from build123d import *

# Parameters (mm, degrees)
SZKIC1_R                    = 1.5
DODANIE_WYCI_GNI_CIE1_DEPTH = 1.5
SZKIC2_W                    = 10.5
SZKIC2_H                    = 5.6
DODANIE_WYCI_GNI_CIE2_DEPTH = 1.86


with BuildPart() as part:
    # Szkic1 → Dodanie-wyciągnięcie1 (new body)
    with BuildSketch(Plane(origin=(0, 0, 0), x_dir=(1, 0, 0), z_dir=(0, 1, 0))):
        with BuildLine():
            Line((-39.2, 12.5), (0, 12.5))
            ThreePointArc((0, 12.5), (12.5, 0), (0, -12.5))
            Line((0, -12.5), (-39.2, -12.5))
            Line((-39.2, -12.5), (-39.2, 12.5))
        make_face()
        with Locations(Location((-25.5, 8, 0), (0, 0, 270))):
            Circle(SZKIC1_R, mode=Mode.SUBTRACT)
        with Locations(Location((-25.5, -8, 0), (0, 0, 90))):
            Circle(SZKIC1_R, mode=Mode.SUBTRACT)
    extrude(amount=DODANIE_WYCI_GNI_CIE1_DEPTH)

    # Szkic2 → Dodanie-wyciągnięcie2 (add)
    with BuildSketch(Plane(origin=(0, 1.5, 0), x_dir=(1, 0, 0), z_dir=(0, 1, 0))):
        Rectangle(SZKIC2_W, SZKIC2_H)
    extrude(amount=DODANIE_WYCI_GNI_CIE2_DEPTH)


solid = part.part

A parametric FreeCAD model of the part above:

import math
import FreeCAD as App
import Part
import Sketcher

V = App.Vector
Q = App.Units.Quantity

doc = App.newDocument("Part")
body = doc.addObject("PartDesign::Body", "Body")

# Sketch on XZ plane
sketch1 = body.newObject("Sketcher::SketchObject", "Sketch")
sketch1.AttachmentSupport = (doc.getObject("XZ_Plane"), [""])
sketch1.MapMode = "FlatFace"
sketch1.addGeometry([
    Part.LineSegment(V(0, -12.5, 0), V(-39.2, -12.5, 0)),  # 0
    Part.LineSegment(V(-39.2, -12.5, 0), V(-39.2, 12.5, 0)),  # 1
    Part.LineSegment(V(-39.2, 12.5, 0), V(0, 12.5, 0)),  # 2
    Part.ArcOfCircle(Part.Circle(V(0, 0, 0), V(0, 0, 1), 12.5), math.radians(-90), math.radians(90)),  # 3
    Part.Circle(V(-25.5, 8, 0), V(0, 0, 1), 1.5),  # 4
    Part.Circle(V(-25.5, -8, 0), V(0, 0, 1), 1.5),  # 5
], False)
sketch1.addConstraint([
    Sketcher.Constraint("Coincident", 0, 2, 1, 1),
    Sketcher.Constraint("Coincident", 1, 2, 2, 1),
    Sketcher.Constraint("Tangent", 2, 2, 3, 2),
    Sketcher.Constraint("Tangent", 3, 1, 0, 1),
    Sketcher.Constraint("Horizontal", 0),
    Sketcher.Constraint("Vertical", 1),
    Sketcher.Constraint("Horizontal", 2),
    Sketcher.Constraint("Coincident", 3, 3, -1, 1),
    Sketcher.Constraint("Equal", 4, 5),
    Sketcher.Constraint("Symmetric", 4, 3, 5, 3, -1),
    Sketcher.Constraint("Diameter", 4, Q("3 mm")),
    Sketcher.Constraint("Radius", 3, Q("12.5 mm")),
    Sketcher.Constraint("DistanceX", 0, 2, 0, 1, Q("39.2 mm")),
    Sketcher.Constraint("DistanceY", -1, 1, 4, 3, Q("8 mm")),
    Sketcher.Constraint("DistanceX", 4, 3, -1, 1, Q("25.5 mm")),
])
pad1 = body.newObject("PartDesign::Pad", "Pad")
pad1.Profile = sketch1
pad1.Length = 1.5
pad1.Reversed = True

# Sketch on XZ plane
sketch2 = body.newObject("Sketcher::SketchObject", "Sketch001")
sketch2.AttachmentSupport = (doc.getObject("XZ_Plane"), [""])
sketch2.MapMode = "FlatFace"
sketch2.AttachmentOffset = App.Placement(V(0, 0, -1.5), App.Rotation())
sketch2.addGeometry([
    Part.LineSegment(V(-5, -3, 0), V(-5, 3, 0)),
    Part.LineSegment(V(-5, 3, 0), V(5, 3, 0)),
    Part.LineSegment(V(5, 3, 0), V(5, -3, 0)),
    Part.LineSegment(V(5, -3, 0), V(-5, -3, 0)),
], False)
sketch2.addConstraint([
    Sketcher.Constraint("Coincident", 0, 2, 1, 1),
    Sketcher.Constraint("Coincident", 1, 2, 2, 1),
    Sketcher.Constraint("Coincident", 2, 2, 3, 1),
    Sketcher.Constraint("Coincident", 3, 2, 0, 1),
    Sketcher.Constraint("Vertical", 0),
    Sketcher.Constraint("Horizontal", 1),
    Sketcher.Constraint("Vertical", 2),
    Sketcher.Constraint("Horizontal", 3),
    Sketcher.Constraint("Symmetric", 0, 2, 2, 2, -1, 1),
    Sketcher.Constraint("DistanceX", 1, 1, 1, 2, Q("10.5 mm")),
    Sketcher.Constraint("DistanceY", 0, 1, 0, 2, Q("5.6 mm")),
])
pad2 = body.newObject("PartDesign::Pad", "Pad001")
pad2.Profile = sketch2
pad2.Length = 1.86
pad2.Reversed = True

doc.recompute()
